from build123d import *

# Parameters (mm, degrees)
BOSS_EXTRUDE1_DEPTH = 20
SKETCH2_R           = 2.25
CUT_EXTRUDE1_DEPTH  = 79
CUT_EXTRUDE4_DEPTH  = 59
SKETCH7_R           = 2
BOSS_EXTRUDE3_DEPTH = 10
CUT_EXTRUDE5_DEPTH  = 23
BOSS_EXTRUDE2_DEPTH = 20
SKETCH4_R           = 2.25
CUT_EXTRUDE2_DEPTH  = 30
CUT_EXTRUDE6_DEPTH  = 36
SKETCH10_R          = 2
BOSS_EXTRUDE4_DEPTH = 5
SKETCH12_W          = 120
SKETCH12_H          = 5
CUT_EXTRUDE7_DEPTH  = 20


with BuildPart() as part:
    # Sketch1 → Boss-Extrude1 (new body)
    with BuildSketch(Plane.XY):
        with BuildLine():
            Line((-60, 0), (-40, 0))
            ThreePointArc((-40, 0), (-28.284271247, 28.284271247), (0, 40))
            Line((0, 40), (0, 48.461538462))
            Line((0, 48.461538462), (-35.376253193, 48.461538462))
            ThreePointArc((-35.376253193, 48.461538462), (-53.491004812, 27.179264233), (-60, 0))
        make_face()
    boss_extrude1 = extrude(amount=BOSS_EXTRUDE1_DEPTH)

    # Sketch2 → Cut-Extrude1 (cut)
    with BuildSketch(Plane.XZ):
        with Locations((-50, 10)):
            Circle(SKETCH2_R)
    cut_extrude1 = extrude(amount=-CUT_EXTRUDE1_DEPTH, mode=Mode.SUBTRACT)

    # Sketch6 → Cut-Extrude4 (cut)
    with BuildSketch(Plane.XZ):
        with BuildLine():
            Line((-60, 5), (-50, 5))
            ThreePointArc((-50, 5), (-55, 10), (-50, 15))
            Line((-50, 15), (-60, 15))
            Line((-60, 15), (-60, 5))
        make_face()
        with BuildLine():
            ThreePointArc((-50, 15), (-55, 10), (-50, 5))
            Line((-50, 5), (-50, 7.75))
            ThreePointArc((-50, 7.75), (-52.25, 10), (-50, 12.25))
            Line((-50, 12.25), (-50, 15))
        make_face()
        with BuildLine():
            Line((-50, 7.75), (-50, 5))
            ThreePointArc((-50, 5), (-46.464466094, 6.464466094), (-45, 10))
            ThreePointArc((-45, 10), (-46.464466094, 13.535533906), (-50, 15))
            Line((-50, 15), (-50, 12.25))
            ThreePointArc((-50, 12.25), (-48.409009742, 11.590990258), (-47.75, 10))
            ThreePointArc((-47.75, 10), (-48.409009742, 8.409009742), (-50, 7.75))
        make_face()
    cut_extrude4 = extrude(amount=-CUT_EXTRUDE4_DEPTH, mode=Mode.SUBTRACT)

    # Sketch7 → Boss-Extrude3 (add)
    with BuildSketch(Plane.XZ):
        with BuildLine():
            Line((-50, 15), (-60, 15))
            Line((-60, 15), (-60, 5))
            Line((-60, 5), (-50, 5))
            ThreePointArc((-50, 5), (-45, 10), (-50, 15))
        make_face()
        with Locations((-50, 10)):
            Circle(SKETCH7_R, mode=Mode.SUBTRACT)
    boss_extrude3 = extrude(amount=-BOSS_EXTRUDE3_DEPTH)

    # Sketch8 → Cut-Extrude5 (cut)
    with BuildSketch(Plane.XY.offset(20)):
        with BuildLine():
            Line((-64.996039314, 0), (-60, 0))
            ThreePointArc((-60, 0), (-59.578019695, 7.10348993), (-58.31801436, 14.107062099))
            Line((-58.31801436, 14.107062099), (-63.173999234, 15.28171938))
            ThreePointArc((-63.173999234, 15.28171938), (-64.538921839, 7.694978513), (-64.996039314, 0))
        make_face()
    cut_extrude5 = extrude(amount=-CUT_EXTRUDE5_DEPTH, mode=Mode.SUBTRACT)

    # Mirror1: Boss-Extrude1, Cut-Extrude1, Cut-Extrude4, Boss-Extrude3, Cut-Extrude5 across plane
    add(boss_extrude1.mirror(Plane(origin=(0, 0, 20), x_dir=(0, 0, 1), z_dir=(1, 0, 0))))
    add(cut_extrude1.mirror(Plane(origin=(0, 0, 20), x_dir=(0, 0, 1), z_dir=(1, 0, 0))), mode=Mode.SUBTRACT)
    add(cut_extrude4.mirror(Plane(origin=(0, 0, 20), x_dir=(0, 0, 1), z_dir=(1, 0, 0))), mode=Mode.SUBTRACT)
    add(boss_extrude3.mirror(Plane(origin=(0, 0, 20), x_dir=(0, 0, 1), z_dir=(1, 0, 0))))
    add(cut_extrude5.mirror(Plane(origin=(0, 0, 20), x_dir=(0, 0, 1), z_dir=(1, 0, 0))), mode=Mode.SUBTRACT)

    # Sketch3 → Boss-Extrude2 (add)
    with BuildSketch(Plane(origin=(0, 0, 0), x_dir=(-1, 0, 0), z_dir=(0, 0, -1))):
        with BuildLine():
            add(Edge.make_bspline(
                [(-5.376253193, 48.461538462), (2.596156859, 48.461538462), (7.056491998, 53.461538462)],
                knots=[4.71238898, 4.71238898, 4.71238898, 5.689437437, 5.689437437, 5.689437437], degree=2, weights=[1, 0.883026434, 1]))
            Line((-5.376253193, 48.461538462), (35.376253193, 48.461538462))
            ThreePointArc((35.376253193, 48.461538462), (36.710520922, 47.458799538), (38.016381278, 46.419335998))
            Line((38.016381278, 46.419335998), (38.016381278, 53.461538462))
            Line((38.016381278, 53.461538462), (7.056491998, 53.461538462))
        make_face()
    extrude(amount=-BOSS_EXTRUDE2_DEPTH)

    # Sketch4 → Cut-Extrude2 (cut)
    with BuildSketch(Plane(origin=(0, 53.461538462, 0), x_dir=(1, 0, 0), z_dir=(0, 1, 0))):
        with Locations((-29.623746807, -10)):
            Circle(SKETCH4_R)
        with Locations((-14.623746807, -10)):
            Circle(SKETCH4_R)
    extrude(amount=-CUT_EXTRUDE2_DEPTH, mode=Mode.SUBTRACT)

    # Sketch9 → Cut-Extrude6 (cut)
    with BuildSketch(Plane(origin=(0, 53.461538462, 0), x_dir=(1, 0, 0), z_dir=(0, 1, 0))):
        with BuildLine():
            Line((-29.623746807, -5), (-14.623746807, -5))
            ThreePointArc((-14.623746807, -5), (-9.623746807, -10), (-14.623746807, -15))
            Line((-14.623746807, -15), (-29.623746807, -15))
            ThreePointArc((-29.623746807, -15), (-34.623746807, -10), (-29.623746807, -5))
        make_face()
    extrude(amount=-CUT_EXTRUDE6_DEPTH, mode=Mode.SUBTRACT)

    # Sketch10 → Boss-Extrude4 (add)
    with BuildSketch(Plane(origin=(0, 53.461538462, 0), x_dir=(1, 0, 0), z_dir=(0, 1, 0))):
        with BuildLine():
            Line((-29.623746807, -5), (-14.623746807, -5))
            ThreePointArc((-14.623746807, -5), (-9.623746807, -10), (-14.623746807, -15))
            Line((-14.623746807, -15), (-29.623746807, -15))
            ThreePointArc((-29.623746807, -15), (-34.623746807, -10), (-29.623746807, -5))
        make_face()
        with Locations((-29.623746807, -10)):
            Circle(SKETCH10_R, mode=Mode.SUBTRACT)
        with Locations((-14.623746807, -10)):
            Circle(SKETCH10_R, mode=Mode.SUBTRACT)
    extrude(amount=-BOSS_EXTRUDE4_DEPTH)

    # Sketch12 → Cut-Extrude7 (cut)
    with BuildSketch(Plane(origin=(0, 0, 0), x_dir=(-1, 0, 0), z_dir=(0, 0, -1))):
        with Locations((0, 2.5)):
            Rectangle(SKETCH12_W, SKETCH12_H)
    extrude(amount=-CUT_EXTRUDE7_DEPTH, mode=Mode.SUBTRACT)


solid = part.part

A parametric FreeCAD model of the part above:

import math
import FreeCAD as App
import Part
import Sketcher
Q = App.Units.Quantity

doc = App.newDocument("Part")
body = doc.addObject("PartDesign::Body", "Body")

sketch1 = body.newObject("Sketcher::SketchObject", "Sketch")
sketch1.AttachmentSupport = (doc.getObject("XY_Plane"), [""])
sketch1.MapMode = "FlatFace"
sketch1.addGeometry(Part.LineSegment(App.Vector(-60, 0, 0), App.Vector(-40, 0, 0)), False)
sketch1.addGeometry(Part.ArcOfCircle(Part.Circle(App.Vector(0, 0, 0), App.Vector(0, 0, 1), 40), math.radians(90), math.radians(180)), False)
sketch1.addGeometry(Part.LineSegment(App.Vector(0, 40, 0), App.Vector(0, 48.461538, 0)), False)
sketch1.addGeometry(Part.LineSegment(App.Vector(0, 48.461538, 0), App.Vector(-35.376253, 48.461538, 0)), False)
sketch1.addGeometry(Part.ArcOfCircle(Part.Circle(App.Vector(0, 0, 0), App.Vector(0, 0, 1), 60), math.radians(126.128927), math.radians(180)), False)
sketch1.addConstraint(Sketcher.Constraint("Coincident", 0, 2, 1, 2))
sketch1.addConstraint(Sketcher.Constraint("Coincident", 1, 1, 2, 1))
sketch1.addConstraint(Sketcher.Constraint("Coincident", 2, 2, 3, 1))
sketch1.addConstraint(Sketcher.Constraint("Coincident", 3, 2, 4, 1))
sketch1.addConstraint(Sketcher.Constraint("Coincident", 4, 2, 0, 1))
sketch1.addConstraint(Sketcher.Constraint("Horizontal", 0))
sketch1.addConstraint(Sketcher.Constraint("Vertical", 2))
sketch1.addConstraint(Sketcher.Constraint("Horizontal", 3))
sketch1.addConstraint(Sketcher.Constraint("Coincident", 1, 3, -1, 1))
sketch1.addConstraint(Sketcher.Constraint("Coincident", 4, 3, -1, 1))
sketch1.addConstraint(Sketcher.Constraint("PointOnObject", 0, 2, -1))
sketch1.addConstraint(Sketcher.Constraint("PointOnObject", 1, 1, -2))
sketch1.addConstraint(Sketcher.Constraint("Radius", 1, Q("40 mm")))
sketch1.addConstraint(Sketcher.Constraint("Radius", 4, Q("60 mm")))
sketch1.addConstraint(Sketcher.Constraint("DistanceY", 2, 1, 2, 2, Q("8.461538 mm")))
pad1 = body.newObject("PartDesign::Pad", "Pad")
pad1.Profile = sketch1
pad1.Length = 20

sketch2 = body.newObject("Sketcher::SketchObject", "Sketch001")
sketch2.AttachmentSupport = (doc.getObject("XZ_Plane"), [""])
sketch2.MapMode = "FlatFace"
sketch2.addGeometry(Part.Circle(App.Vector(-50, 10, 0), App.Vector(0, 0, 1), 2.25), False)
sketch2.addConstraint(Sketcher.Constraint("Diameter", 0, Q("4.5 mm")))
sketch2.addConstraint(Sketcher.Constraint("DistanceX", 0, 3, -1, 1, Q("50 mm")))
sketch2.addConstraint(Sketcher.Constraint("DistanceY", -1, 1, 0, 3, Q("10 mm")))
pocket1 = body.newObject("PartDesign::Pocket", "Pocket")
pocket1.Profile = sketch2
pocket1.Length = 79

sketch3 = body.newObject("Sketcher::SketchObject", "Sketch002")
sketch3.AttachmentSupport = (doc.getObject("XZ_Plane"), [""])
sketch3.MapMode = "FlatFace"
sketch3.addGeometry(Part.LineSegment(App.Vector(-50, 15, 0), App.Vector(-60, 15, 0)), False)
sketch3.addGeometry(Part.LineSegment(App.Vector(-60, 15, 0), App.Vector(-60, 5, 0)), False)
sketch3.addGeometry(Part.LineSegment(App.Vector(-60, 5, 0), App.Vector(-50, 5, 0)), False)
sketch3.addGeometry(Part.ArcOfCircle(Part.Circle(App.Vector(-50, 10, 0), App.Vector(0, 0, 1), 5), math.radians(-90), math.radians(0)), False)
sketch3.addGeometry(Part.ArcOfCircle(Part.Circle(App.Vector(-50, 10, 0), App.Vector(0, 0, 1), 5), math.radians(0), math.radians(90)), False)
sketch3.addGeometry(Part.ArcOfCircle(Part.Circle(App.Vector(-50, 10, 0), App.Vector(0, 0, 1), 2.25), math.radians(90), math.radians(270)), False)
sketch3.addGeometry(Part.ArcOfCircle(Part.Circle(App.Vector(-50, 10, 0), App.Vector(0, 0, 1), 2.25), math.radians(0), math.radians(90)), False)
sketch3.addGeometry(Part.ArcOfCircle(Part.Circle(App.Vector(-50, 10, 0), App.Vector(0, 0, 1), 2.25), math.radians(-90), math.radians(0)), False)
sketch3.addConstraint(Sketcher.Constraint("Coincident", 0, 2, 1, 1))
sketch3.addConstraint(Sketcher.Constraint("Coincident", 1, 2, 2, 1))
sketch3.addConstraint(Sketcher.Constraint("Tangent", 2, 2, 3, 1))
sketch3.addConstraint(Sketcher.Constraint("Tangent", 3, 2, 4, 1))
sketch3.addConstraint(Sketcher.Constraint("Tangent", 4, 2, 0, 1))
sketch3.addConstraint(Sketcher.Constraint("Tangent", 5, 1, 6, 2))
sketch3.addConstraint(Sketcher.Constraint("Tangent", 6, 1, 7, 2))
sketch3.addConstraint(Sketcher.Constraint("Tangent", 7, 1, 5, 2))
sketch3.addConstraint(Sketcher.Constraint("Horizontal", 0))
sketch3.addConstraint(Sketcher.Constraint("Vertical", 1))
sketch3.addConstraint(Sketcher.Constraint("Horizontal", 2))
sketch3.addConstraint(Sketcher.Constraint("Coincident", 5, 3, 3, 3))
sketch3.addConstraint(Sketcher.Constraint("Equal", 3, 4))
sketch3.addConstraint(Sketcher.Constraint("Horizontal", 7, 3, 3, 2))
sketch3.addConstraint(Sketcher.Constraint("Horizontal", 3, 2, 6, 1))
sketch3.addConstraint(Sketcher.Constraint("Vertical", 4, 2, 5, 1))
sketch3.addConstraint(Sketcher.Constraint("Vertical", 5, 1, 7, 1))
sketch3.addConstraint(Sketcher.Constraint("Equal", 2, 1))
sketch3.addConstraint(Sketcher.Constraint("Radius", 3, Q("5 mm")))
sketch3.addConstraint(Sketcher.Constraint("Radius", 5, Q("2.25 mm")))
sketch3.addConstraint(Sketcher.Constraint("DistanceX", 3, 3, -1, 1, Q("50 mm")))
sketch3.addConstraint(Sketcher.Constraint("DistanceY", -1, 1, 3, 3, Q("10 mm")))
pocket2 = body.newObject("PartDesign::Pocket", "Pocket001")
pocket2.Profile = sketch3
pocket2.Length = 59

sketch4 = body.newObject("Sketcher::SketchObject", "Sketch003")
sketch4.AttachmentSupport = (doc.getObject("XZ_Plane"), [""])
sketch4.MapMode = "FlatFace"
sketch4.addGeometry(Part.LineSegment(App.Vector(-50, 15, 0), App.Vector(-60, 15, 0)), False)
sketch4.addGeometry(Part.LineSegment(App.Vector(-60, 15, 0), App.Vector(-60, 5, 0)), False)
sketch4.addGeometry(Part.LineSegment(App.Vector(-60, 5, 0), App.Vector(-50, 5, 0)), False)
sketch4.addGeometry(Part.ArcOfCircle(Part.Circle(App.Vector(-50, 10, 0), App.Vector(0, 0, 1), 5), math.radians(-90), math.radians(90)), False)
sketch4.addGeometry(Part.Circle(App.Vector(-50, 10, 0), App.Vector(0, 0, 1), 2), False)
sketch4.addConstraint(Sketcher.Constraint("Coincident", 0, 2, 1, 1))
sketch4.addConstraint(Sketcher.Constraint("Coincident", 1, 2, 2, 1))
sketch4.addConstraint(Sketcher.Constraint("Tangent", 2, 2, 3, 1))
sketch4.addConstraint(Sketcher.Constraint("Tangent", 3, 2, 0, 1))
sketch4.addConstraint(Sketcher.Constraint("Horizontal", 0))
sketch4.addConstraint(Sketcher.Constraint("Vertical", 1))
sketch4.addConstraint(Sketcher.Constraint("Horizontal", 2))
sketch4.addConstraint(Sketcher.Constraint("Coincident", 4, 3, 3, 3))
sketch4.addConstraint(Sketcher.Constraint("Equal", 2, 1))
sketch4.addConstraint(Sketcher.Constraint("Diameter", 4, Q("4 mm")))
sketch4.addConstraint(Sketcher.Constraint("Radius", 3, Q("5 mm")))
sketch4.addConstraint(Sketcher.Constraint("DistanceX", 3, 3, -1, 1, Q("50 mm")))
sketch4.addConstraint(Sketcher.Constraint("DistanceY", -1, 1, 3, 3, Q("10 mm")))
pad2 = body.newObject("PartDesign::Pad", "Pad001")
pad2.Profile = sketch4
pad2.Length = 10
pad2.Reversed = True

sketch5 = body.newObject("Sketcher::SketchObject", "Sketch004")
sketch5.AttachmentSupport = (doc.getObject("XY_Plane"), [""])
sketch5.MapMode = "FlatFace"
sketch5.AttachmentOffset = App.Placement(App.Vector(0, 0, 20), App.Rotation())
sketch5.addGeometry(Part.LineSegment(App.Vector(-64.996039, 0, 0), App.Vector(-60, 0, 0)), False)
sketch5.addGeometry(Part.ArcOfCircle(Part.Circle(App.Vector(0, 0, 0), App.Vector(0, 0, 1), 60), math.radians(166.401439), math.radians(180)), False)
sketch5.addGeometry(Part.LineSegment(App.Vector(-58.318014, 14.107062, 0), App.Vector(-63.173999, 15.281719, 0)), False)
sketch5.addGeometry(Part.ArcOfCircle(Part.Circle(App.Vector(0, 0, 0), App.Vector(0, 0, 1), 64.996039), math.radians(166.401439), math.radians(180)), False)
sketch5.addConstraint(Sketcher.Constraint("Coincident", 0, 2, 1, 2))
sketch5.addConstraint(Sketcher.Constraint("Coincident", 1, 1, 2, 1))
sketch5.addConstraint(Sketcher.Constraint("Coincident", 2, 2, 3, 1))
sketch5.addConstraint(Sketcher.Constraint("Coincident", 3, 2, 0, 1))
sketch5.addConstraint(Sketcher.Constraint("Horizontal", 0))
sketch5.addConstraint(Sketcher.Constraint("Coincident", 1, 3, -1, 1))
sketch5.addConstraint(Sketcher.Constraint("Coincident", 3, 3, -1, 1))
sketch5.addConstraint(Sketcher.Constraint("PointOnObject", 0, 2, -1))
sketch5.addConstraint(Sketcher.Constraint("Radius", 1, Q("60 mm")))
sketch5.addConstraint(Sketcher.Constraint("Radius", 3, Q("64.996039 mm")))
sketch5.addConstraint(Sketcher.Constraint("DistanceX", 2, 2, -1, 1, Q("63.173999 mm")))
sketch5.addConstraint(Sketcher.Constraint("DistanceX", 1, 1, -1, 1, Q("58.318014 mm")))
pocket3 = body.newObject("PartDesign::Pocket", "Pocket002")
pocket3.Profile = sketch5
pocket3.Length = 23
doc.recompute()

mirrored = body.newObject("PartDesign::Mirrored", "Mirrored")
mirrored.Originals = [pad1, pocket1, pocket2, pad2, pocket3]
mirrored.MirrorPlane = (doc.getObject("YZ_Plane"), [""])
body.Tip = mirrored

sketch6 = body.newObject("Sketcher::SketchObject", "Sketch005")
sketch6.AttachmentSupport = (doc.getObject("XY_Plane"), [""])
sketch6.MapMode = "FlatFace"
sketch6.addGeometry(Part.BSplineCurve([App.Vector(5.376253, 48.461538, 0), App.Vector(-2.596157, 48.461538, 0), App.Vector(-7.056492, 53.461538, 0)], [3, 3], [4.71238898, 5.689437437], False, 2, [1, 0.883026434, 1], False), False)
sketch6.addGeometry(Part.LineSegment(App.Vector(5.376253, 48.461538, 0), App.Vector(-35.376253, 48.461538, 0)), False)
sketch6.addGeometry(Part.ArcOfCircle(Part.Circle(App.Vector(0.000001, -0.000001, 0), App.Vector(0, 0, 1), 60.000002), math.radians(126.128928), math.radians(129.316697)), False)
sketch6.addGeometry(Part.LineSegment(App.Vector(-38.016381, 46.419336, 0), App.Vector(-38.016381, 53.461538, 0)), False)
sketch6.addGeometry(Part.LineSegment(App.Vector(-38.016381, 53.461538, 0), App.Vector(-7.056492, 53.461538, 0)), False)
sketch6.addConstraint(Sketcher.Constraint("Block", 0))
sketch6.addConstraint(Sketcher.Constraint("Coincident", 0, 1, 1, 1))
sketch6.addConstraint(Sketcher.Constraint("Coincident", 1, 2, 2, 1))
sketch6.addConstraint(Sketcher.Constraint("Coincident", 2, 2, 3, 1))
sketch6.addConstraint(Sketcher.Constraint("Coincident", 3, 2, 4, 1))
sketch6.addConstraint(Sketcher.Constraint("Coincident", 4, 2, 0, 2))
sketch6.addConstraint(Sketcher.Constraint("Horizontal", 1))
sketch6.addConstraint(Sketcher.Constraint("Vertical", 3))
sketch6.addConstraint(Sketcher.Constraint("Horizontal", 4))
sketch6.addConstraint(Sketcher.Constraint("Coincident", 2, 3, -1, 1))
sketch6.addConstraint(Sketcher.Constraint("Radius", 2, Q("60.000002 mm")))
sketch6.addConstraint(Sketcher.Constraint("DistanceX", 4, 1, 4, 2, Q("30.959889 mm")))
pad3 = body.newObject("PartDesign::Pad", "Pad002")
pad3.Profile = sketch6
pad3.Length = 20

sketch7 = body.newObject("Sketcher::SketchObject", "Sketch006")
sketch7.AttachmentSupport = (doc.getObject("XZ_Plane"), [""])
sketch7.MapMode = "FlatFace"
sketch7.AttachmentOffset = App.Placement(App.Vector(0, 0, -53.461538), App.Rotation())
sketch7.addGeometry(Part.Circle(App.Vector(-29.623747, 10, 0), App.Vector(0, 0, 1), 2.25), False)
sketch7.addGeometry(Part.Circle(App.Vector(-14.623747, 10, 0), App.Vector(0, 0, 1), 2.25), False)
sketch7.addConstraint(Sketcher.Constraint("Equal", 0, 1))
sketch7.addConstraint(Sketcher.Constraint("Horizontal", 0, 3, 1, 3))
sketch7.addConstraint(Sketcher.Constraint("Diameter", 0, Q("4.5 mm")))
sketch7.addConstraint(Sketcher.Constraint("DistanceY", -1, 1, 0, 3, Q("10 mm")))
sketch7.addConstraint(Sketcher.Constraint("DistanceX", 0, 3, 1, 3, Q("15 mm")))
sketch7.addConstraint(Sketcher.Constraint("DistanceX", 0, 3, -1, 1, Q("29.623747 mm")))
pocket4 = body.newObject("PartDesign::Pocket", "Pocket003")
pocket4.Profile = sketch7
pocket4.Length = 30
pocket4.Reversed = True

sketch8 = body.newObject("Sketcher::SketchObject", "Sketch007")
sketch8.AttachmentSupport = (doc.getObject("XZ_Plane"), [""])
sketch8.MapMode = "FlatFace"
sketch8.AttachmentOffset = App.Placement(App.Vector(0, 0, -53.461538), App.Rotation())
sketch8.addGeometry(Part.LineSegment(App.Vector(-14.623747, 5, 0), App.Vector(-29.623747, 5, 0)), False)
sketch8.addGeometry(Part.ArcOfCircle(Part.Circle(App.Vector(-29.623747, 10, 0), App.Vector(0, 0, 1), 5), math.radians(90), math.radians(270)), False)
sketch8.addGeometry(Part.LineSegment(App.Vector(-29.623747, 15, 0), App.Vector(-14.623747, 15, 0)), False)
sketch8.addGeometry(Part.ArcOfCircle(Part.Circle(App.Vector(-14.623747, 10, 0), App.Vector(0, 0, 1), 5), math.radians(-90), math.radians(90)), False)
sketch8.addConstraint(Sketcher.Constraint("Tangent", 0, 2, 1, 2))
sketch8.addConstraint(Sketcher.Constraint("Tangent", 1, 1, 2, 1))
sketch8.addConstraint(Sketcher.Constraint("Tangent", 2, 2, 3, 2))
sketch8.addConstraint(Sketcher.Constraint("Tangent", 3, 1, 0, 1))
sketch8.addConstraint(Sketcher.Constraint("Horizontal", 0))
sketch8.addConstraint(Sketcher.Constraint("Horizontal", 2))
sketch8.addConstraint(Sketcher.Constraint("Radius", 1, Q("5 mm")))
sketch8.addConstraint(Sketcher.Constraint("DistanceX", 0, 2, 0, 1, Q("15 mm")))
sketch8.addConstraint(Sketcher.Constraint("DistanceY", -1, 1, 1, 3, Q("10 mm")))
sketch8.addConstraint(Sketcher.Constraint("DistanceX", 1, 3, -1, 1, Q("29.623747 mm")))
pocket5 = body.newObject("PartDesign::Pocket", "Pocket004")
pocket5.Profile = sketch8
pocket5.Length = 36
pocket5.Reversed = True

sketch9 = body.newObject("Sketcher::SketchObject", "Sketch008")
sketch9.AttachmentSupport = (doc.getObject("XZ_Plane"), [""])
sketch9.MapMode = "FlatFace"
sketch9.AttachmentOffset = App.Placement(App.Vector(0, 0, -53.461538), App.Rotation())
sketch9.addGeometry(Part.LineSegment(App.Vector(-14.623747, 5, 0), App.Vector(-29.623747, 5, 0)), False)
sketch9.addGeometry(Part.ArcOfCircle(Part.Circle(App.Vector(-29.623747, 10, 0), App.Vector(0, 0, 1), 5), math.radians(90), math.radians(270)), False)
sketch9.addGeometry(Part.LineSegment(App.Vector(-29.623747, 15, 0), App.Vector(-14.623747, 15, 0)), False)
sketch9.addGeometry(Part.ArcOfCircle(Part.Circle(App.Vector(-14.623747, 10, 0), App.Vector(0, 0, 1), 5), math.radians(-90), math.radians(90)), False)
sketch9.addGeometry(Part.Circle(App.Vector(-14.623747, 10, 0), App.Vector(0, 0, 1), 2), False)
sketch9.addGeometry(Part.Circle(App.Vector(-29.623747, 10, 0), App.Vector(0, 0, 1), 2), False)
sketch9.addConstraint(Sketcher.Constraint("Tangent", 0, 2, 1, 2))
sketch9.addConstraint(Sketcher.Constraint("Tangent", 1, 1, 2, 1))
sketch9.addConstraint(Sketcher.Constraint("Tangent", 2, 2, 3, 2))
sketch9.addConstraint(Sketcher.Constraint("Tangent", 3, 1, 0, 1))
sketch9.addConstraint(Sketcher.Constraint("Horizontal", 0))
sketch9.addConstraint(Sketcher.Constraint("Horizontal", 2))
sketch9.addConstraint(Sketcher.Constraint("Coincident", 4, 3, 3, 3))
sketch9.addConstraint(Sketcher.Constraint("Coincident", 5, 3, 1, 3))
sketch9.addConstraint(Sketcher.Constraint("Equal", 4, 5))
sketch9.addConstraint(Sketcher.Constraint("Diameter", 4, Q("4 mm")))
sketch9.addConstraint(Sketcher.Constraint("Radius", 1, Q("5 mm")))
sketch9.addConstraint(Sketcher.Constraint("DistanceX", 0, 2, 0, 1, Q("15 mm")))
sketch9.addConstraint(Sketcher.Constraint("DistanceY", -1, 1, 1, 3, Q("10 mm")))
sketch9.addConstraint(Sketcher.Constraint("DistanceX", 1, 3, -1, 1, Q("29.623747 mm")))
pad4 = body.newObject("PartDesign::Pad", "Pad003")
pad4.Profile = sketch9
pad4.Length = 5

sketch10 = body.newObject("Sketcher::SketchObject", "Sketch009")
sketch10.AttachmentSupport = (doc.getObject("XY_Plane"), [""])
sketch10.MapMode = "FlatFace"
sketch10.addGeometry(Part.LineSegment(App.Vector(60, 5, 0), App.Vector(60, 0, 0)), False)
sketch10.addGeometry(Part.LineSegment(App.Vector(60, 0, 0), App.Vector(-60, 0, 0)), False)
sketch10.addGeometry(Part.LineSegment(App.Vector(-60, 0, 0), App.Vector(-60, 5, 0)), False)
sketch10.addGeometry(Part.LineSegment(App.Vector(-60, 5, 0), App.Vector(60, 5, 0)), False)
sketch10.addConstraint(Sketcher.Constraint("Coincident", 0, 2, 1, 1))
sketch10.addConstraint(Sketcher.Constraint("Coincident", 1, 2, 2, 1))
sketch10.addConstraint(Sketcher.Constraint("Coincident", 2, 2, 3, 1))
sketch10.addConstraint(Sketcher.Constraint("Coincident", 3, 2, 0, 1))
sketch10.addConstraint(Sketcher.Constraint("Vertical", 0))
sketch10.addConstraint(Sketcher.Constraint("Horizontal", 1))
sketch10.addConstraint(Sketcher.Constraint("Vertical", 2))
sketch10.addConstraint(Sketcher.Constraint("Horizontal", 3))
sketch10.addConstraint(Sketcher.Constraint("Symmetric", 0, 2, 1, 2, -1, 1))
sketch10.addConstraint(Sketcher.Constraint("DistanceX", 1, 2, 1, 1, Q("120 mm")))
sketch10.addConstraint(Sketcher.Constraint("DistanceY", 0, 2, 0, 1, Q("5 mm")))
pocket6 = body.newObject("PartDesign::Pocket", "Pocket005")
pocket6.Profile = sketch10
pocket6.Length = 20
pocket6.Reversed = True

doc.recompute()
